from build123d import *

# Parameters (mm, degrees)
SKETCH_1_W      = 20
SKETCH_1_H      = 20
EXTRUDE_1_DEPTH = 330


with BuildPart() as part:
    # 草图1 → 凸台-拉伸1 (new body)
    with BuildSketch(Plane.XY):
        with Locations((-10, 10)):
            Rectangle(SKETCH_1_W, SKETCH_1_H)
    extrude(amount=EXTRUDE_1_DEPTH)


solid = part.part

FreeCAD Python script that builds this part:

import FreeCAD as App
import Part
import Sketcher


def add_polygon(sketch, points):
    """Adds a closed chain of lines whose ends are joined by coincident constraints."""
    first, n = sketch.GeometryCount, len(points)
    for a, b in zip(points, points[1:] + points[:1]):
        sketch.addGeometry(Part.LineSegment(App.Vector(*a, 0), App.Vector(*b, 0)), False)
    for i in range(n):
        sketch.addConstraint(Sketcher.Constraint("Coincident", first + i, 2, first + (i + 1) % n, 1))

doc = App.newDocument("Part")
body = doc.addObject("PartDesign::Body", "Body")

# Sketch on XY plane
sketch1 = doc.addObject("Sketcher::SketchObject", "Sketch")
body.addObject(sketch1)
sketch1.AttachmentSupport = (doc.XY_Plane, [""])
sketch1.MapMode = "FlatFace"
add_polygon(sketch1, [(-20, 20), (-20, 0), (0, 0), (0, 20)])  # lines 0-3
sketch1.addConstraint(Sketcher.Constraint("Vertical", 0))
sketch1.addConstraint(Sketcher.Constraint("Horizontal", 1))
sketch1.addConstraint(Sketcher.Constraint("Vertical", 2))
sketch1.addConstraint(Sketcher.Constraint("Horizontal", 3))
sketch1.addConstraint(Sketcher.Constraint("Coincident", 1, 2, -1, 1))
sketch1.addConstraint(Sketcher.Constraint("Equal", 3, 0))
sketch1.addConstraint(Sketcher.Constraint("DistanceX", 1, 1, 1, 2, 20.0))
pad1 = doc.addObject("PartDesign::Pad", "Pad")
body.addObject(pad1)
pad1.Profile = sketch1
pad1.Length = 330

doc.recompute()
